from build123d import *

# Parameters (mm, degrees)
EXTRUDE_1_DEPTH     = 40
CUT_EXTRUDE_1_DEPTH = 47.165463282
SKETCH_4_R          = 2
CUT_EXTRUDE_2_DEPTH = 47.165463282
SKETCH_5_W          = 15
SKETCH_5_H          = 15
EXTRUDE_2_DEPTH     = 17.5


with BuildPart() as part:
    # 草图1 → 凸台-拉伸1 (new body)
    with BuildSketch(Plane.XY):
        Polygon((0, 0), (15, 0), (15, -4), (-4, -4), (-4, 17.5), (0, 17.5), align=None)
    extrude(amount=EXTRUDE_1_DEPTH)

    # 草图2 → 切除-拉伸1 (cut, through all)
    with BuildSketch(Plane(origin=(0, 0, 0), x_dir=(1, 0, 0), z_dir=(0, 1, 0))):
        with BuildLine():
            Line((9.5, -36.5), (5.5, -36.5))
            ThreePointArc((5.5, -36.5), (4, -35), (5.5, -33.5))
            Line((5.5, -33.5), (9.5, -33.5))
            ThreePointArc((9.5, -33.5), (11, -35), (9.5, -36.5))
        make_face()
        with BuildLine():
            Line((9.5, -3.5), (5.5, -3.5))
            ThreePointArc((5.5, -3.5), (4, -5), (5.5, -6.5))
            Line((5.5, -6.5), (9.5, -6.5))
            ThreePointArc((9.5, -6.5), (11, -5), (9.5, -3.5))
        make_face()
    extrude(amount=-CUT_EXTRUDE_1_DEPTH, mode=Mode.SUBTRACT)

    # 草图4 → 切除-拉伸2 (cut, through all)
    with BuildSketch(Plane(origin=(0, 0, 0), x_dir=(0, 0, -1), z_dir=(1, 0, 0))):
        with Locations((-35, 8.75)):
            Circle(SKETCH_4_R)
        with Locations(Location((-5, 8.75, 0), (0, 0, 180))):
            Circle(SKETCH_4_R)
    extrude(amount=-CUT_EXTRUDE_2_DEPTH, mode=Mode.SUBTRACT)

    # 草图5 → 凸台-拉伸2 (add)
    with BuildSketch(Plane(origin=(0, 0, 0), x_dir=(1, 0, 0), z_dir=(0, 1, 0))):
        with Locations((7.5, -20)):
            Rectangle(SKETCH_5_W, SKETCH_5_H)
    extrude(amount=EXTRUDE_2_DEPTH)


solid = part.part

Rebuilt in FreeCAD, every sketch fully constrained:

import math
import FreeCAD as App
import Part
import Sketcher

V = App.Vector
Q = App.Units.Quantity


def add_polygon(sketch, points):
    """Adds a closed chain of lines whose ends are joined by coincident constraints."""
    first, n = sketch.GeometryCount, len(points)
    for a, b in zip(points, points[1:] + points[:1]):
        sketch.addGeometry(Part.LineSegment(App.Vector(*a, 0), App.Vector(*b, 0)), False)
    for i in range(n):
        sketch.addConstraint(Sketcher.Constraint("Coincident", first + i, 2, first + (i + 1) % n, 1))

doc = App.newDocument("Part")
params = doc.addObject("Spreadsheet::Sheet", "Params")
for row, (alias, value) in enumerate([
    ("sketch1_width", "15 mm"),
    ("sketch1_width2", "4 mm"),
    ("sketch1_height", "17.5 mm"),
    ("pad1_length", "40 mm"),
    ("sketch2_radius", "1.5 mm"),
    ("sketch2_width", "4 mm"),
    ("sketch3_diameter", "4 mm"),
    ("sketch4_width", "15 mm"),
    ("pad2_length", "17.5 mm"),
], start=1):
    params.set(f"A{row}", alias)
    params.set(f"B{row}", "=" + value)
    params.setAlias(f"B{row}", alias)

body = doc.addObject("PartDesign::Body", "Body")

sketch1 = body.newObject("Sketcher::SketchObject", "Sketch")
sketch1.AttachmentSupport = (doc.getObject("XY_Plane"), [""])
sketch1.MapMode = "FlatFace"
add_polygon(sketch1, [(15, 0), (0, 0), (0, 17.5), (-4, 17.5), (-4, -4), (15, -4)])
sketch1.addConstraint(Sketcher.Constraint("Horizontal", 0))
sketch1.addConstraint(Sketcher.Constraint("Vertical", 1))
sketch1.addConstraint(Sketcher.Constraint("Horizontal", 2))
sketch1.addConstraint(Sketcher.Constraint("Vertical", 3))
sketch1.addConstraint(Sketcher.Constraint("Horizontal", 4))
sketch1.addConstraint(Sketcher.Constraint("Vertical", 5))
sketch1.addConstraint(Sketcher.Constraint("Coincident", 0, 2, -1, 1))
sketch1.addConstraint(Sketcher.Constraint("Equal", 2, 5))
sketch1.addConstraint(Sketcher.Constraint("DistanceX", 0, 2, 0, 1, Q("15 mm")))
sketch1.addConstraint(Sketcher.Constraint("DistanceX", 2, 2, 2, 1, Q("4 mm")))
sketch1.addConstraint(Sketcher.Constraint("DistanceY", 1, 1, 1, 2, Q("17.5 mm")))
sketch1.setExpression("Constraints[14]", "Params.sketch1_width")
sketch1.setExpression("Constraints[15]", "Params.sketch1_width2")
sketch1.setExpression("Constraints[16]", "Params.sketch1_height")
pad1 = body.newObject("PartDesign::Pad", "Pad")
pad1.Profile = sketch1
pad1.setExpression("Length", "Params.pad1_length")

sketch2 = body.newObject("Sketcher::SketchObject", "Sketch001")
sketch2.AttachmentSupport = (doc.getObject("XZ_Plane"), [""])
sketch2.MapMode = "FlatFace"
sketch2.addGeometry(Part.LineSegment(V(5.5, 36.5, 0), V(9.5, 36.5, 0)), False)
sketch2.addGeometry(Part.ArcOfCircle(Part.Circle(V(9.5, 35, 0), V(0, 0, 1), 1.5), math.radians(-90), math.radians(90)), False)
sketch2.addGeometry(Part.LineSegment(V(9.5, 33.5, 0), V(5.5, 33.5, 0)), False)
sketch2.addGeometry(Part.ArcOfCircle(Part.Circle(V(5.5, 35, 0), V(0, 0, 1), 1.5), math.radians(90), math.radians(270)), False)
sketch2.addGeometry(Part.LineSegment(V(9.5, 3.5, 0), V(5.5, 3.5, 0)), False)
sketch2.addGeometry(Part.ArcOfCircle(Part.Circle(V(5.5, 5, 0), V(0, 0, 1), 1.5), math.radians(90), math.radians(270)), False)
sketch2.addGeometry(Part.LineSegment(V(5.5, 6.5, 0), V(9.5, 6.5, 0)), False)
sketch2.addGeometry(Part.ArcOfCircle(Part.Circle(V(9.5, 5, 0), V(0, 0, 1), 1.5), math.radians(-90), math.radians(90)), False)
sketch2.addConstraint(Sketcher.Constraint("Tangent", 0, 2, 1, 2))
sketch2.addConstraint(Sketcher.Constraint("Tangent", 1, 1, 2, 1))
sketch2.addConstraint(Sketcher.Constraint("Tangent", 2, 2, 3, 2))
sketch2.addConstraint(Sketcher.Constraint("Tangent", 3, 1, 0, 1))
sketch2.addConstraint(Sketcher.Constraint("Tangent", 4, 2, 5, 2))
sketch2.addConstraint(Sketcher.Constraint("Tangent", 5, 1, 6, 1))
sketch2.addConstraint(Sketcher.Constraint("Tangent", 6, 2, 7, 2))
sketch2.addConstraint(Sketcher.Constraint("Tangent", 7, 1, 4, 1))
sketch2.addConstraint(Sketcher.Constraint("Horizontal", 0))
sketch2.addConstraint(Sketcher.Constraint("Horizontal", 2))
sketch2.addConstraint(Sketcher.Constraint("Horizontal", 4))
sketch2.addConstraint(Sketcher.Constraint("Horizontal", 6))
sketch2.addConstraint(Sketcher.Constraint("Equal", 3, 5))
sketch2.addConstraint(Sketcher.Constraint("Vertical", 3, 3, 5, 3))
sketch2.addConstraint(Sketcher.Constraint("Vertical", 1, 3, 7, 3))
sketch2.addConstraint(Sketcher.Constraint("Radius", 1, Q("1.5 mm")))
sketch2.addConstraint(Sketcher.Constraint("DistanceX", 0, 1, 0, 2, Q("4 mm")))
sketch2.addConstraint(Sketcher.Constraint("DistanceY", -1, 1, 1, 3, Q("35 mm")))
sketch2.addConstraint(Sketcher.Constraint("DistanceY", -1, 1, 5, 3, Q("5 mm")))
sketch2.addConstraint(Sketcher.Constraint("DistanceX", -1, 1, 1, 3, Q("9.5 mm")))
sketch2.setExpression("Constraints[15]", "Params.sketch2_radius")
sketch2.setExpression("Constraints[16]", "Params.sketch2_width")
pocket1 = body.newObject("PartDesign::Pocket", "Pocket")
pocket1.Profile = sketch2
pocket1.Type = "ThroughAll"
pocket1.Reversed = True

sketch3 = body.newObject("Sketcher::SketchObject", "Sketch002")
sketch3.AttachmentSupport = (doc.getObject("YZ_Plane"), [""])
sketch3.MapMode = "FlatFace"
sketch3.addGeometry(Part.Circle(V(8.75, 35, 0), V(0, 0, 1), 2), False)
sketch3.addGeometry(Part.Circle(V(8.75, 5, 0), V(0, 0, 1), 2), False)
sketch3.addConstraint(Sketcher.Constraint("Equal", 0, 1))
sketch3.addConstraint(Sketcher.Constraint("Vertical", 0, 3, 1, 3))
sketch3.addConstraint(Sketcher.Constraint("Diameter", 0, Q("4 mm")))
sketch3.addConstraint(Sketcher.Constraint("DistanceY", -1, 1, 0, 3, Q("35 mm")))
sketch3.addConstraint(Sketcher.Constraint("DistanceY", -1, 1, 1, 3, Q("5 mm")))
sketch3.addConstraint(Sketcher.Constraint("DistanceX", -1, 1, 0, 3, Q("8.75 mm")))
sketch3.setExpression("Constraints[2]", "Params.sketch3_diameter")
pocket2 = body.newObject("PartDesign::Pocket", "Pocket001")
pocket2.Profile = sketch3
pocket2.Type = "ThroughAll"

sketch4 = body.newObject("Sketcher::SketchObject", "Sketch003")
sketch4.AttachmentSupport = (doc.getObject("XZ_Plane"), [""])
sketch4.MapMode = "FlatFace"
add_polygon(sketch4, [(0, 12.5), (0, 27.5), (15, 27.5), (15, 12.5)])
sketch4.addConstraint(Sketcher.Constraint("Vertical", 0))
sketch4.addConstraint(Sketcher.Constraint("Horizontal", 1))
sketch4.addConstraint(Sketcher.Constraint("Vertical", 2))
sketch4.addConstraint(Sketcher.Constraint("Horizontal", 3))
sketch4.addConstraint(Sketcher.Constraint("PointOnObject", 0, 2, -2))
sketch4.addConstraint(Sketcher.Constraint("Equal", 3, 0))
sketch4.addConstraint(Sketcher.Constraint("DistanceX", 1, 1, 1, 2, Q("15 mm")))
sketch4.addConstraint(Sketcher.Constraint("DistanceY", -1, 1, 0, 2, Q("27.5 mm")))
sketch4.setExpression("Constraints[10]", "Params.sketch4_width")
pad2 = body.newObject("PartDesign::Pad", "Pad001")
pad2.Profile = sketch4
pad2.setExpression("Length", "Params.pad2_length")
pad2.Reversed = True

doc.recompute()
